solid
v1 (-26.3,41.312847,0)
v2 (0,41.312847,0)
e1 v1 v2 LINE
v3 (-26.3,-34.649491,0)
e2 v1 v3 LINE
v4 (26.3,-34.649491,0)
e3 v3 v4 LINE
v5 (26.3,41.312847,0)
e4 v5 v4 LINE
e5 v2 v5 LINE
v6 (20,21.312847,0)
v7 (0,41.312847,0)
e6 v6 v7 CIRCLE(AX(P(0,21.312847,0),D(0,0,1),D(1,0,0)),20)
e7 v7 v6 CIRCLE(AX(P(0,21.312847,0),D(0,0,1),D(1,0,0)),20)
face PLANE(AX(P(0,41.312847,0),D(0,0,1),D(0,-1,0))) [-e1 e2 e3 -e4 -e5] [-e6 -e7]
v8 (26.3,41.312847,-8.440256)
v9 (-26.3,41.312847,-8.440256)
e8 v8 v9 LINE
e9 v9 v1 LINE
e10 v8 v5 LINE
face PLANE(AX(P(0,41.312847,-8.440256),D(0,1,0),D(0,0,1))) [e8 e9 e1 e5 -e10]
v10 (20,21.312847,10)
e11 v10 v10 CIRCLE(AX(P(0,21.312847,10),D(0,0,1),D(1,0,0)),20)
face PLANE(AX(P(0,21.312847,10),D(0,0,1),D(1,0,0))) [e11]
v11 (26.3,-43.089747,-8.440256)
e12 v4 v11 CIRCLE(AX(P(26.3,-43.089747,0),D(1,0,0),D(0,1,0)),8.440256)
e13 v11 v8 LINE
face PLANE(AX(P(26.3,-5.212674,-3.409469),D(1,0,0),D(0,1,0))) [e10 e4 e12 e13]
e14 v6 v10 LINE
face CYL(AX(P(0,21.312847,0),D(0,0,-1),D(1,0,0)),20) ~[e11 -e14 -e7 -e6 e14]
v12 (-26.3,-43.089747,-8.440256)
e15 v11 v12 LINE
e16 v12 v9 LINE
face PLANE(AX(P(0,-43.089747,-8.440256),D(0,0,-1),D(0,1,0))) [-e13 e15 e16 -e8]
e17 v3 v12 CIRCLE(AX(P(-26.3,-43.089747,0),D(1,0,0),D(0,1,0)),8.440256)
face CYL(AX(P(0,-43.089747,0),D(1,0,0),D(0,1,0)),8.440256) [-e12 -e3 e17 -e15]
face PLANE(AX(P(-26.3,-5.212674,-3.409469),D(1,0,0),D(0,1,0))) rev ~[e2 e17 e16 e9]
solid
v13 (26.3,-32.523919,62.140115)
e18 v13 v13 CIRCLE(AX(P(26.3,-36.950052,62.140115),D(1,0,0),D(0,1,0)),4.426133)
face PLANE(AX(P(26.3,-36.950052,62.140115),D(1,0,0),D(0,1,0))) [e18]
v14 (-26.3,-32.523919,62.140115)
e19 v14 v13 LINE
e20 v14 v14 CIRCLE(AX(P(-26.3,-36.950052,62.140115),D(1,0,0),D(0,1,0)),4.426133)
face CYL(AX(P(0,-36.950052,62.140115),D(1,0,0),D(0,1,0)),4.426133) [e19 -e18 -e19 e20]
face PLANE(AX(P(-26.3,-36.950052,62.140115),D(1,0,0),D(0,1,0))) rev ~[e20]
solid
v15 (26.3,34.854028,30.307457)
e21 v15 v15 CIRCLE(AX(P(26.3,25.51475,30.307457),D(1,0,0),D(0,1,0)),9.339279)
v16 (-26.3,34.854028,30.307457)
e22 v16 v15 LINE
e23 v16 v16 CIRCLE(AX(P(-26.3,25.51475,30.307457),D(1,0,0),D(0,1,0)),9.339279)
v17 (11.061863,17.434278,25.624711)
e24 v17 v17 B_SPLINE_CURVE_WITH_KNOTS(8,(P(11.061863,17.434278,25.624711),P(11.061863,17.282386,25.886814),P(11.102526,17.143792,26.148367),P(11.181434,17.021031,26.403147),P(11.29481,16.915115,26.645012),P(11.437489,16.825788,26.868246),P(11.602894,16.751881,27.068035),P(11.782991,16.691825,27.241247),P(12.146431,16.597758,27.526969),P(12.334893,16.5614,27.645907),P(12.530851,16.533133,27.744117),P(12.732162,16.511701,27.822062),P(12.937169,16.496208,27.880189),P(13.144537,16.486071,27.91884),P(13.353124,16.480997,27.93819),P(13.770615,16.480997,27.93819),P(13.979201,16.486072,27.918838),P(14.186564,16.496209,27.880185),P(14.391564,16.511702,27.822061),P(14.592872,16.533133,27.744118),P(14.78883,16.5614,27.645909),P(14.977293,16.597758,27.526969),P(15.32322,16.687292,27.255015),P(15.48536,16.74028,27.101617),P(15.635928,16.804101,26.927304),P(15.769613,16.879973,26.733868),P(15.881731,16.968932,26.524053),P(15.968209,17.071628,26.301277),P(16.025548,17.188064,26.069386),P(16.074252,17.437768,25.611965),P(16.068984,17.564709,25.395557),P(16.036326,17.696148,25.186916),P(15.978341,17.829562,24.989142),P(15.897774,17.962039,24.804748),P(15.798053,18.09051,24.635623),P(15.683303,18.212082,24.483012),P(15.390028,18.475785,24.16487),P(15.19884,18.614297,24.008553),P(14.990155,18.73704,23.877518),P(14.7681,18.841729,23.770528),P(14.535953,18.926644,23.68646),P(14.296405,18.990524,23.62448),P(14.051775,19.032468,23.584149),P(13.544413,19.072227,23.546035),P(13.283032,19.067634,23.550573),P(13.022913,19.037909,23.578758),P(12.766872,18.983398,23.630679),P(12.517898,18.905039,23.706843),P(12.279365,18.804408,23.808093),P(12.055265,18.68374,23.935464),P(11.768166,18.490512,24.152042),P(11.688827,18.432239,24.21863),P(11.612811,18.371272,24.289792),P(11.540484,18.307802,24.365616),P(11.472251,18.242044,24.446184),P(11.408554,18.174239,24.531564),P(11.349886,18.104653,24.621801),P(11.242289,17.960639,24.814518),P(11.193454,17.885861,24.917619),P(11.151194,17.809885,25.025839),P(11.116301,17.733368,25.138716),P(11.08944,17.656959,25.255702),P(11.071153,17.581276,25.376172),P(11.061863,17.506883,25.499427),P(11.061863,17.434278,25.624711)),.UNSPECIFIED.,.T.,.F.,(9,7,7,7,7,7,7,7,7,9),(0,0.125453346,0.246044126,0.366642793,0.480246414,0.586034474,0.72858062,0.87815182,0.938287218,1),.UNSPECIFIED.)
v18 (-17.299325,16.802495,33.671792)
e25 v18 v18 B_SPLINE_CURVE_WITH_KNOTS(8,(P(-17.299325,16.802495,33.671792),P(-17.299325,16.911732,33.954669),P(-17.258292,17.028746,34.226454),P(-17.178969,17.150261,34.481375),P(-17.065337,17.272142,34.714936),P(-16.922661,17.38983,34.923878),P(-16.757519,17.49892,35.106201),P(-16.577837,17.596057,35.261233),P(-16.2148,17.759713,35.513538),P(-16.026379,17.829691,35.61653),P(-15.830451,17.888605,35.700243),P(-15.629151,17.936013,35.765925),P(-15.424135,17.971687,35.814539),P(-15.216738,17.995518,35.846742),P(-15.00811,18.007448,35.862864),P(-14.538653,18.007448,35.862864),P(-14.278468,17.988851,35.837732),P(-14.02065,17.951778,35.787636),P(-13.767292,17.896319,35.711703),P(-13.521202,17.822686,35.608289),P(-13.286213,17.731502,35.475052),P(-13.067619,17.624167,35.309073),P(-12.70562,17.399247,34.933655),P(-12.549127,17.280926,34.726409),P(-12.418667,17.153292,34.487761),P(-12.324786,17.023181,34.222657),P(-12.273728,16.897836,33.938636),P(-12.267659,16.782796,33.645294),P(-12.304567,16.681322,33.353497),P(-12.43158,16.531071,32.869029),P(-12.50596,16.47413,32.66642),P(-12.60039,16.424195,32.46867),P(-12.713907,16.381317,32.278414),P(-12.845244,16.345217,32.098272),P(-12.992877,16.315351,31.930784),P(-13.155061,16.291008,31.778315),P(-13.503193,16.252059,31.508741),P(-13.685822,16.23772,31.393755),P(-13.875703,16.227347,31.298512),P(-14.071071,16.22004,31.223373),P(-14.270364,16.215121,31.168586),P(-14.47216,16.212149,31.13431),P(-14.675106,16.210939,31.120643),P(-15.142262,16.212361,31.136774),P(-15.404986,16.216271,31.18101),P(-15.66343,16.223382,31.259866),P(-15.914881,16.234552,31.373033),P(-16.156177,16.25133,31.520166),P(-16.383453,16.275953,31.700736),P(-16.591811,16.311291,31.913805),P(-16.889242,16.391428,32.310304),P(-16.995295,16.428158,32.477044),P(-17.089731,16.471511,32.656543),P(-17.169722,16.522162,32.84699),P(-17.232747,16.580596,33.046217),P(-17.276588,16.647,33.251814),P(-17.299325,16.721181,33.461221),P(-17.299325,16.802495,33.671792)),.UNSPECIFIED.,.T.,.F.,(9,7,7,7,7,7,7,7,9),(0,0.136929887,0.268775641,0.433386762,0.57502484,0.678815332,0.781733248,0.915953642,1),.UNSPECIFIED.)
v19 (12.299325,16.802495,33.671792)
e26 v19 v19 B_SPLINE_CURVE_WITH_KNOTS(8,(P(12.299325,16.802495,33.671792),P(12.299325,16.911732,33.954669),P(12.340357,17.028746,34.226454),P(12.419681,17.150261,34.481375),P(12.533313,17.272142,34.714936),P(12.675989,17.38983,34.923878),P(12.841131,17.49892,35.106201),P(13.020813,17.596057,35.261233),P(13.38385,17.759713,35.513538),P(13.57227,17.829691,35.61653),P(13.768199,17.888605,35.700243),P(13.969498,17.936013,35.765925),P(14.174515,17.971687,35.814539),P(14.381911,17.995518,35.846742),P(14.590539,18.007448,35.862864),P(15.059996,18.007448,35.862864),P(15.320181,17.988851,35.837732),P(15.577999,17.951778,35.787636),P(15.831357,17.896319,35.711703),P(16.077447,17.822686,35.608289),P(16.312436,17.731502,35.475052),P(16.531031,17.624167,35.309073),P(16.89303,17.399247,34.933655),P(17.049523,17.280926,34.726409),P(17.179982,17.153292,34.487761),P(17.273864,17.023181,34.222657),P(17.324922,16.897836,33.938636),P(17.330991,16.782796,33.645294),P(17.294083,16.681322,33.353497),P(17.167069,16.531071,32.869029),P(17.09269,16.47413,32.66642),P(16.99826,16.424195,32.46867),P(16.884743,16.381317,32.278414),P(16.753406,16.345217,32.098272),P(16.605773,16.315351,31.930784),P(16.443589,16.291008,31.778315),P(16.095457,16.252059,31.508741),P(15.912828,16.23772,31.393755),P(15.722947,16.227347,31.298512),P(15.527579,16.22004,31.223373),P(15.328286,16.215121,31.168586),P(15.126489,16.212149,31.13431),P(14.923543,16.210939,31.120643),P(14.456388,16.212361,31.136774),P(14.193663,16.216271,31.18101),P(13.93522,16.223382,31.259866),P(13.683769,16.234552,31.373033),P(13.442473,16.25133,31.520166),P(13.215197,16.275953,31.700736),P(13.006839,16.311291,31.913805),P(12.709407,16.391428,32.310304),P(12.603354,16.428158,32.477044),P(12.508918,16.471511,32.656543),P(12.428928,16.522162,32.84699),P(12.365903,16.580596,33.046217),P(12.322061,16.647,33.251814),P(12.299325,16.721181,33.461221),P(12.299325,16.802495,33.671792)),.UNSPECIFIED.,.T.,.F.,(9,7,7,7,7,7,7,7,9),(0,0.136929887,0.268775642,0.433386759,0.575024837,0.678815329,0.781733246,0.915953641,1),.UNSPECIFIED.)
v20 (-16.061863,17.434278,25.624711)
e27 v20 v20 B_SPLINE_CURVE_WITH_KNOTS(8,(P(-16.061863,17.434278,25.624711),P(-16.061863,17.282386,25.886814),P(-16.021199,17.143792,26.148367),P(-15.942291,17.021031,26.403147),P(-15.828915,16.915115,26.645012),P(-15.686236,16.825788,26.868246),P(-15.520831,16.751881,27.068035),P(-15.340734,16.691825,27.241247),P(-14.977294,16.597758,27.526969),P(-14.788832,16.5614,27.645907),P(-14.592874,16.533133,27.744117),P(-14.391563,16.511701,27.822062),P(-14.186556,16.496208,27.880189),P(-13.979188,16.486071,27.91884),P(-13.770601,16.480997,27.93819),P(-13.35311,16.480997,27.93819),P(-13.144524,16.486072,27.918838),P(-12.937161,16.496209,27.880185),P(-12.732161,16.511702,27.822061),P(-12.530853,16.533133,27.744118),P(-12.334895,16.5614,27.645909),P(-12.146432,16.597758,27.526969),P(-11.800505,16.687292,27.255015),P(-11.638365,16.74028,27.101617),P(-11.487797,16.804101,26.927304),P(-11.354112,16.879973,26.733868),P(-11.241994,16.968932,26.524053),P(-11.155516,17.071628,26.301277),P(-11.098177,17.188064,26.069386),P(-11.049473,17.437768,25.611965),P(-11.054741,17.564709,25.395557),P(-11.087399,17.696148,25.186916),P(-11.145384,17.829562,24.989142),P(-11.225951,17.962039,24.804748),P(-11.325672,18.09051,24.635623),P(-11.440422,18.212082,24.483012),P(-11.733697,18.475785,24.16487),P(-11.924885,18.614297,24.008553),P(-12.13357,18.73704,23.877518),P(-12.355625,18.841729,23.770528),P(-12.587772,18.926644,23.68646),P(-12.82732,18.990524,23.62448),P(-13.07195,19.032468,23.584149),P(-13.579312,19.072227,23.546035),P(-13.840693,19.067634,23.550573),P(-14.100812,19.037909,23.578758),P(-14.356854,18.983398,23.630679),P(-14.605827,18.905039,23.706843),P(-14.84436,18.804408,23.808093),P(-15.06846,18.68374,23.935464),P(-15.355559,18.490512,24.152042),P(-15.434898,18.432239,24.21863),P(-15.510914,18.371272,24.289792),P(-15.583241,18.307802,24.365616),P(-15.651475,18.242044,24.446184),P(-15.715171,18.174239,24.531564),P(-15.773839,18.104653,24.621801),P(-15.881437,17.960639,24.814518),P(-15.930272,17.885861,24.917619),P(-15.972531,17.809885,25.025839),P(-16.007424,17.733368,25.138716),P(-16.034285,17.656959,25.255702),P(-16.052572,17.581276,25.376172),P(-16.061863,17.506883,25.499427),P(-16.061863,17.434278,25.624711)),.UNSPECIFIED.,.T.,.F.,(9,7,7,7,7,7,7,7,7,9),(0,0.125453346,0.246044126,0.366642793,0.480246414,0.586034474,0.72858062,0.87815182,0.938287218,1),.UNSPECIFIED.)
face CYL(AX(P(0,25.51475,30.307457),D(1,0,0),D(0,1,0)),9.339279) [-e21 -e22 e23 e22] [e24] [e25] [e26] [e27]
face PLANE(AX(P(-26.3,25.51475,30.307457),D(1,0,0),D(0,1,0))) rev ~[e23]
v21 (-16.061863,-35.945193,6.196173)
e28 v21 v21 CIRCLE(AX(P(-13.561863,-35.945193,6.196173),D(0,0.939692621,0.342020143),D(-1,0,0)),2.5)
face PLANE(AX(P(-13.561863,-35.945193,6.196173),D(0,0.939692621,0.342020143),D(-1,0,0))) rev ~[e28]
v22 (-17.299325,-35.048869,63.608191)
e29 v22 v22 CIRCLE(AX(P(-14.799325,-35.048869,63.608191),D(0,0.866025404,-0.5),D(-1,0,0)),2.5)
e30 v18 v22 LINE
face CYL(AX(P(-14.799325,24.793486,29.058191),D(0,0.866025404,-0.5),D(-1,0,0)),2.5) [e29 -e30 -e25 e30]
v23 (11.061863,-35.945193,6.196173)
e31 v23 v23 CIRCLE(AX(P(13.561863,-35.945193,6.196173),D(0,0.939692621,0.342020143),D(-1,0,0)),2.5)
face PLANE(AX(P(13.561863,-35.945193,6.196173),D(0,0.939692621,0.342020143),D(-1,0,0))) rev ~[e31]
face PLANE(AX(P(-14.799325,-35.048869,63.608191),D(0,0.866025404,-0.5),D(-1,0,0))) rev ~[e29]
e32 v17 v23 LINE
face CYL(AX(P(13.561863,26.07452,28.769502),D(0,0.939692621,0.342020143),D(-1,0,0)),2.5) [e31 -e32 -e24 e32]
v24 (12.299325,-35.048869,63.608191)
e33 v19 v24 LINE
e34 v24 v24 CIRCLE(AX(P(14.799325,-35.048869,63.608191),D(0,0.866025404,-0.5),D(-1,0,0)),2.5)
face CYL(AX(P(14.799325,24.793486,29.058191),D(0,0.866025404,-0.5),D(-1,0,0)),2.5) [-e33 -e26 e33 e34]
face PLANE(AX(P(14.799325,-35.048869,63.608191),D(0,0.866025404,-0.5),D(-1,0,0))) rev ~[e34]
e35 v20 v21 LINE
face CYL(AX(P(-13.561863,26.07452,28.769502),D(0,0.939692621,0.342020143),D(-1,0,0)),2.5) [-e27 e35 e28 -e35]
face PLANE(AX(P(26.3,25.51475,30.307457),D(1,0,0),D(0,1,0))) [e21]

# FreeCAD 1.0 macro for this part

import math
import FreeCAD as App
import Part
import Sketcher

V = App.Vector
Q = App.Units.Quantity

doc = App.newDocument("Part")
params = doc.addObject("Spreadsheet::Sheet", "Params")
for row, (alias, value) in enumerate([
    ("pad1_length", "52.6 mm"),
    ("sketch2_diameter", "40 mm"),
    ("pad2_length", "10 mm"),
    ("pad3_length", "52.6 mm"),
    ("pad4_length", "52.6 mm"),
    ("sketch5_diameter", "5 mm"),
    ("pad5_length", "69.1 mm"),
    ("sketch6_diameter", "5 mm"),
    ("pad6_length", "66 mm"),
], start=1):
    params.set(f"A{row}", alias)
    params.set(f"B{row}", "=" + value)
    params.setAlias(f"B{row}", alias)

body = doc.addObject("PartDesign::Body", "Body")

# Sketch on YZ plane
sketch1 = body.newObject("Sketcher::SketchObject", "Sketch")
sketch1.AttachmentSupport = (doc.getObject("YZ_Plane"), [""])
sketch1.MapMode = "FlatFace"
sketch1.addGeometry(Part.LineSegment(V(41, -8, 0), V(41, 0, 0)), False)
sketch1.addGeometry(Part.LineSegment(V(41, 0, 0), V(-35, 0, 0)), False)
sketch1.addGeometry(Part.ArcOfCircle(Part.Circle(V(-43, 0, 0), V(0, 0, 1), 8), math.radians(0), math.radians(270)), False)
sketch1.addGeometry(Part.LineSegment(V(-43, -8, 0), V(41, -8, 0)), False)
sketch1.addConstraint(Sketcher.Constraint("Coincident", 0, 2, 1, 1))
sketch1.addConstraint(Sketcher.Constraint("Coincident", 1, 2, 2, 1))
sketch1.addConstraint(Sketcher.Constraint("Tangent", 2, 2, 3, 1))
sketch1.addConstraint(Sketcher.Constraint("Coincident", 3, 2, 0, 1))
sketch1.addConstraint(Sketcher.Constraint("Vertical", 0))
sketch1.addConstraint(Sketcher.Constraint("Horizontal", 1))
sketch1.addConstraint(Sketcher.Constraint("Horizontal", 3))
sketch1.addConstraint(Sketcher.Constraint("PointOnObject", 2, 3, -1))
sketch1.addConstraint(Sketcher.Constraint("PointOnObject", 0, 2, -1))
sketch1.addConstraint(Sketcher.Constraint("Radius", 2, Q("8.440256 mm")))
sketch1.addConstraint(Sketcher.Constraint("DistanceX", 1, 2, 1, 1, Q("75.962339 mm")))
sketch1.addConstraint(Sketcher.Constraint("DistanceX", 1, 2, -1, 1, Q("34.649491 mm")))
pad1 = body.newObject("PartDesign::Pad", "Pad")
pad1.Profile = sketch1
pad1.setExpression("Length", "Params.pad1_length")
pad1.Midplane = True

# Sketch on XY plane
sketch2 = body.newObject("Sketcher::SketchObject", "Sketch001")
sketch2.AttachmentSupport = (doc.getObject("XY_Plane"), [""])
sketch2.MapMode = "FlatFace"
sketch2.addGeometry(Part.Circle(V(0, 21, 0), V(0, 0, 1), 20), False)
sketch2.addConstraint(Sketcher.Constraint("PointOnObject", 0, 3, -2))
sketch2.addConstraint(Sketcher.Constraint("Diameter", 0, Q("40 mm")))
sketch2.addConstraint(Sketcher.Constraint("DistanceY", -1, 1, 0, 3, Q("21.312847 mm")))
sketch2.setExpression("Constraints[1]", "Params.sketch2_diameter")
pad2 = body.newObject("PartDesign::Pad", "Pad001")
pad2.Profile = sketch2
pad2.setExpression("Length", "Params.pad2_length")
body2 = doc.addObject("PartDesign::Body", "Body001")

# Sketch on YZ plane
sketch3 = body2.newObject("Sketcher::SketchObject", "Sketch002")
sketch3.AttachmentSupport = (doc.getObject("YZ_Plane001"), [""])
sketch3.MapMode = "FlatFace"
sketch3.addGeometry(Part.Circle(V(26, 30, 0), V(0, 0, 1), 9), False)
sketch3.addConstraint(Sketcher.Constraint("Diameter", 0, Q("18.678557 mm")))
sketch3.addConstraint(Sketcher.Constraint("DistanceX", -1, 1, 0, 3, Q("25.51475 mm")))
sketch3.addConstraint(Sketcher.Constraint("DistanceY", -1, 1, 0, 3, Q("30.307457 mm")))
pad3 = body2.newObject("PartDesign::Pad", "Pad002")
pad3.Profile = sketch3
pad3.setExpression("Length", "Params.pad3_length")
pad3.Midplane = True
body3 = doc.addObject("PartDesign::Body", "Body002")

# Sketch on YZ plane
sketch4 = body3.newObject("Sketcher::SketchObject", "Sketch003")
sketch4.AttachmentSupport = (doc.getObject("YZ_Plane002"), [""])
sketch4.MapMode = "FlatFace"
sketch4.addGeometry(Part.Circle(V(-37, 62.1, 0), V(0, 0, 1), 4.4), False)
sketch4.addConstraint(Sketcher.Constraint("Diameter", 0, Q("8.852266 mm")))
sketch4.addConstraint(Sketcher.Constraint("DistanceX", 0, 3, -1, 1, Q("36.950052 mm")))
sketch4.addConstraint(Sketcher.Constraint("DistanceY", -1, 1, 0, 3, Q("62.140115 mm")))
pad4 = body3.newObject("PartDesign::Pad", "Pad003")
pad4.Profile = sketch4
pad4.setExpression("Length", "Params.pad4_length")
pad4.Midplane = True
body4 = doc.addObject("PartDesign::Body", "Body003")
body4.AllowCompound = True

# Sketch on an angled plane
sketch5 = body4.newObject("Sketcher::SketchObject", "Sketch004")
sketch5.Placement = App.Placement(V(0, 6.012549, -3.471347), App.Rotation(V(-1, 0, 0), V(0, 0.5, 0.866025404), V(0, 0.866025404, -0.5), "ZXY"))
sketch5.addGeometry(Part.Circle(V(-14.8, 37.6, 0), V(0, 0, 1), 2.5), False)
sketch5.addGeometry(Part.Circle(V(14.8, 37.6, 0), V(0, 0, 1), 2.5), False)
sketch5.addConstraint(Sketcher.Constraint("Equal", 0, 1))
sketch5.addConstraint(Sketcher.Constraint("Symmetric", 0, 3, 1, 3, -2))
sketch5.addConstraint(Sketcher.Constraint("Diameter", 0, Q("5 mm")))
sketch5.addConstraint(Sketcher.Constraint("DistanceX", 0, 3, 1, 3, Q("29.59865 mm")))
sketch5.addConstraint(Sketcher.Constraint("DistanceY", -1, 1, 0, 3, Q("37.561875 mm")))
sketch5.setExpression("Constraints[2]", "Params.sketch5_diameter")
pad5 = body4.newObject("PartDesign::Pad", "Pad004")
pad5.Profile = sketch5
pad5.setExpression("Length", "Params.pad5_length")
pad5.Reversed = True
doc.recompute()

boolean = body2.newObject("PartDesign::Boolean", "Boolean")
boolean.Type = "Fuse"
boolean.addObjects([body4])

# Sketch on an angled plane
sketch6 = body2.newObject("Sketcher::SketchObject", "Sketch005")
sketch6.Placement = App.Placement(V(0, 32.27072, 11.745581), App.Rotation(V(-1, 0, 0), V(0, -0.342020143, 0.939692621), V(0, 0.939692621, 0.342020143), "ZXY"))
sketch6.addGeometry(Part.Circle(V(13.6, 18.1, 0), V(0, 0, 1), 2.5), False)
sketch6.addGeometry(Part.Circle(V(-13.6, 18.1, 0), V(0, 0, 1), 2.5), False)
sketch6.addConstraint(Sketcher.Constraint("Equal", 0, 1))
sketch6.addConstraint(Sketcher.Constraint("Symmetric", 0, 3, 1, 3, -2))
sketch6.addConstraint(Sketcher.Constraint("Diameter", 0, Q("5 mm")))
sketch6.addConstraint(Sketcher.Constraint("DistanceX", -1, 1, 0, 3, Q("13.561863 mm")))
sketch6.addConstraint(Sketcher.Constraint("DistanceY", -1, 1, 0, 3, Q("18.116478 mm")))
sketch6.setExpression("Constraints[2]", "Params.sketch6_diameter")
pad6 = body2.newObject("PartDesign::Pad", "Pad005")
pad6.Profile = sketch6
pad6.setExpression("Length", "Params.pad6_length")
pad6.Reversed = True

doc.recompute()
